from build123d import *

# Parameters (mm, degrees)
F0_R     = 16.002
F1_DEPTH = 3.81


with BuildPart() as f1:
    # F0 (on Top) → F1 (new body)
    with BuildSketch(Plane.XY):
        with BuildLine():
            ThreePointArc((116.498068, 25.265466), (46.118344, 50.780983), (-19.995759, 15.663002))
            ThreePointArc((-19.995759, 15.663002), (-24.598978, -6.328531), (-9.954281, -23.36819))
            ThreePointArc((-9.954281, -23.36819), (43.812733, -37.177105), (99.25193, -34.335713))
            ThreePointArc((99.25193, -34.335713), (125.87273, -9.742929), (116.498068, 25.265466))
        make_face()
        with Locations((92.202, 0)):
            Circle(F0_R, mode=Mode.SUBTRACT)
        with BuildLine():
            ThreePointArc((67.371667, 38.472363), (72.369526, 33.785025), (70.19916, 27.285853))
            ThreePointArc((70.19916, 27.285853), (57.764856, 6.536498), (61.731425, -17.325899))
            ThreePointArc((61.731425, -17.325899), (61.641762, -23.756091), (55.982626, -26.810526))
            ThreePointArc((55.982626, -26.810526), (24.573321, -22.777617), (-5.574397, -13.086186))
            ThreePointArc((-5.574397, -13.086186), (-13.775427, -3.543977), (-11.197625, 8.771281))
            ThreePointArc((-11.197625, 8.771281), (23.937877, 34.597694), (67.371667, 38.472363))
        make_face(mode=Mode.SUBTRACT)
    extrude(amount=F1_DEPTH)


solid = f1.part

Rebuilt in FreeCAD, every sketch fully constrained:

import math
import FreeCAD as App
import Part
import Sketcher
Q = App.Units.Quantity

doc = App.newDocument("Part")
params = doc.addObject("Spreadsheet::Sheet", "Params")
for row, (alias, value) in enumerate([
    ("sketch1_radius", "1 in"),
    ("sketch1_diameter", "1.26 in"),
    ("sketch1_radius2", "3.63 in"),
    ("sketch1_radius3", "7.25 in"),
    ("sketch1_radius4", "1.38 in"),
    ("pad1_length", "0.15 in"),
], start=1):
    params.set(f"A{row}", alias)
    params.set(f"B{row}", "=" + value)
    params.setAlias(f"B{row}", alias)

body = doc.addObject("PartDesign::Body", "Body")

# Sketch on XY plane
sketch1 = body.newObject("Sketcher::SketchObject", "Sketch")
sketch1.AttachmentSupport = (doc.getObject("XY_Plane"), [""])
sketch1.MapMode = "FlatFace"
sketch1.addGeometry(Part.ArcOfCircle(Part.Circle(App.Vector(53, -41, 0), App.Vector(0, 0, 1), 92), math.radians(46), math.radians(142)), False)
sketch1.addGeometry(Part.ArcOfCircle(Part.Circle(App.Vector(0, 0, 0), App.Vector(0, 0, 1), 25), math.radians(142), math.radians(247)), False)
sketch1.addGeometry(Part.ArcOfCircle(Part.Circle(App.Vector(62, 146, 0), App.Vector(0, 0, 1), 184), math.radians(-113), math.radians(-78)), False)
sketch1.addGeometry(Part.ArcOfCircle(Part.Circle(App.Vector(92, 0, 0), App.Vector(0, 0, 1), 35), math.radians(-78), math.radians(46)), False)
sketch1.addGeometry(Part.Circle(App.Vector(92, 0, 0), App.Vector(0, 0, 1), 16), False)
sketch1.addGeometry(Part.ArcOfCircle(Part.Circle(App.Vector(53, -41, 0), App.Vector(0, 0, 1), 81), math.radians(79), math.radians(142)), False)
sketch1.addGeometry(Part.ArcOfCircle(Part.Circle(App.Vector(66, 32, 0), App.Vector(0, 0, 1), 6), math.radians(-51), math.radians(79)), False)
sketch1.addGeometry(Part.ArcOfCircle(Part.Circle(App.Vector(92, 0, 0), App.Vector(0, 0, 1), 35), math.radians(129), math.radians(210)), False)
sketch1.addGeometry(Part.ArcOfCircle(Part.Circle(App.Vector(56, -20, 0), App.Vector(0, 0, 1), 6), math.radians(-92), math.radians(30)), False)
sketch1.addGeometry(Part.ArcOfCircle(Part.Circle(App.Vector(62, 146, 0), App.Vector(0, 0, 1), 173), math.radians(-113), math.radians(-92)), False)
sketch1.addGeometry(Part.ArcOfCircle(Part.Circle(App.Vector(0, 0, 0), App.Vector(0, 0, 1), 14), math.radians(142), math.radians(247)), False)
sketch1.addConstraint(Sketcher.Constraint("Tangent", 0, 2, 1, 1))
sketch1.addConstraint(Sketcher.Constraint("Tangent", 1, 2, 2, 1))
sketch1.addConstraint(Sketcher.Constraint("Tangent", 2, 2, 3, 1))
sketch1.addConstraint(Sketcher.Constraint("Tangent", 3, 2, 0, 1))
sketch1.addConstraint(Sketcher.Constraint("Tangent", 5, 1, 6, 2))
sketch1.addConstraint(Sketcher.Constraint("Tangent", 6, 1, 7, 1))
sketch1.addConstraint(Sketcher.Constraint("Tangent", 7, 2, 8, 2))
sketch1.addConstraint(Sketcher.Constraint("Tangent", 8, 1, 9, 2))
sketch1.addConstraint(Sketcher.Constraint("Tangent", 9, 1, 10, 2))
sketch1.addConstraint(Sketcher.Constraint("Tangent", 10, 1, 5, 2))
sketch1.addConstraint(Sketcher.Constraint("Coincident", 1, 3, -1, 1))
sketch1.addConstraint(Sketcher.Constraint("Coincident", 10, 3, -1, 1))
sketch1.addConstraint(Sketcher.Constraint("Coincident", 4, 3, 3, 3))
sketch1.addConstraint(Sketcher.Constraint("Coincident", 5, 3, 0, 3))
sketch1.addConstraint(Sketcher.Constraint("Coincident", 7, 3, 3, 3))
sketch1.addConstraint(Sketcher.Constraint("Coincident", 9, 3, 2, 3))
sketch1.addConstraint(Sketcher.Constraint("Equal", 6, 8))
sketch1.addConstraint(Sketcher.Constraint("PointOnObject", 3, 3, -1))
sketch1.addConstraint(Sketcher.Constraint("Radius", 1, Q("1 in")))
sketch1.addConstraint(Sketcher.Constraint("Diameter", 4, Q("1.26 in")))
sketch1.addConstraint(Sketcher.Constraint("Radius", 0, Q("3.63 in")))
sketch1.addConstraint(Sketcher.Constraint("Radius", 2, Q("7.25 in")))
sketch1.addConstraint(Sketcher.Constraint("Radius", 3, Q("1.38 in")))
sketch1.addConstraint(Sketcher.Constraint("Radius", 5, Q("3.19 in")))
sketch1.addConstraint(Sketcher.Constraint("Radius", 6, Q("0.25 in")))
sketch1.addConstraint(Sketcher.Constraint("Radius", 7, Q("1.3800001 in")))
sketch1.addConstraint(Sketcher.Constraint("DistanceX", -1, 1, 3, 3, Q("3.63 in")))
sketch1.setExpression("Constraints[18]", "Params.sketch1_radius")
sketch1.setExpression("Constraints[19]", "Params.sketch1_diameter")
sketch1.setExpression("Constraints[20]", "Params.sketch1_radius2")
sketch1.setExpression("Constraints[21]", "Params.sketch1_radius3")
sketch1.setExpression("Constraints[22]", "Params.sketch1_radius4")
pad1 = body.newObject("PartDesign::Pad", "Pad")
pad1.Profile = sketch1
pad1.setExpression("Length", "Params.pad1_length")

doc.recompute()
